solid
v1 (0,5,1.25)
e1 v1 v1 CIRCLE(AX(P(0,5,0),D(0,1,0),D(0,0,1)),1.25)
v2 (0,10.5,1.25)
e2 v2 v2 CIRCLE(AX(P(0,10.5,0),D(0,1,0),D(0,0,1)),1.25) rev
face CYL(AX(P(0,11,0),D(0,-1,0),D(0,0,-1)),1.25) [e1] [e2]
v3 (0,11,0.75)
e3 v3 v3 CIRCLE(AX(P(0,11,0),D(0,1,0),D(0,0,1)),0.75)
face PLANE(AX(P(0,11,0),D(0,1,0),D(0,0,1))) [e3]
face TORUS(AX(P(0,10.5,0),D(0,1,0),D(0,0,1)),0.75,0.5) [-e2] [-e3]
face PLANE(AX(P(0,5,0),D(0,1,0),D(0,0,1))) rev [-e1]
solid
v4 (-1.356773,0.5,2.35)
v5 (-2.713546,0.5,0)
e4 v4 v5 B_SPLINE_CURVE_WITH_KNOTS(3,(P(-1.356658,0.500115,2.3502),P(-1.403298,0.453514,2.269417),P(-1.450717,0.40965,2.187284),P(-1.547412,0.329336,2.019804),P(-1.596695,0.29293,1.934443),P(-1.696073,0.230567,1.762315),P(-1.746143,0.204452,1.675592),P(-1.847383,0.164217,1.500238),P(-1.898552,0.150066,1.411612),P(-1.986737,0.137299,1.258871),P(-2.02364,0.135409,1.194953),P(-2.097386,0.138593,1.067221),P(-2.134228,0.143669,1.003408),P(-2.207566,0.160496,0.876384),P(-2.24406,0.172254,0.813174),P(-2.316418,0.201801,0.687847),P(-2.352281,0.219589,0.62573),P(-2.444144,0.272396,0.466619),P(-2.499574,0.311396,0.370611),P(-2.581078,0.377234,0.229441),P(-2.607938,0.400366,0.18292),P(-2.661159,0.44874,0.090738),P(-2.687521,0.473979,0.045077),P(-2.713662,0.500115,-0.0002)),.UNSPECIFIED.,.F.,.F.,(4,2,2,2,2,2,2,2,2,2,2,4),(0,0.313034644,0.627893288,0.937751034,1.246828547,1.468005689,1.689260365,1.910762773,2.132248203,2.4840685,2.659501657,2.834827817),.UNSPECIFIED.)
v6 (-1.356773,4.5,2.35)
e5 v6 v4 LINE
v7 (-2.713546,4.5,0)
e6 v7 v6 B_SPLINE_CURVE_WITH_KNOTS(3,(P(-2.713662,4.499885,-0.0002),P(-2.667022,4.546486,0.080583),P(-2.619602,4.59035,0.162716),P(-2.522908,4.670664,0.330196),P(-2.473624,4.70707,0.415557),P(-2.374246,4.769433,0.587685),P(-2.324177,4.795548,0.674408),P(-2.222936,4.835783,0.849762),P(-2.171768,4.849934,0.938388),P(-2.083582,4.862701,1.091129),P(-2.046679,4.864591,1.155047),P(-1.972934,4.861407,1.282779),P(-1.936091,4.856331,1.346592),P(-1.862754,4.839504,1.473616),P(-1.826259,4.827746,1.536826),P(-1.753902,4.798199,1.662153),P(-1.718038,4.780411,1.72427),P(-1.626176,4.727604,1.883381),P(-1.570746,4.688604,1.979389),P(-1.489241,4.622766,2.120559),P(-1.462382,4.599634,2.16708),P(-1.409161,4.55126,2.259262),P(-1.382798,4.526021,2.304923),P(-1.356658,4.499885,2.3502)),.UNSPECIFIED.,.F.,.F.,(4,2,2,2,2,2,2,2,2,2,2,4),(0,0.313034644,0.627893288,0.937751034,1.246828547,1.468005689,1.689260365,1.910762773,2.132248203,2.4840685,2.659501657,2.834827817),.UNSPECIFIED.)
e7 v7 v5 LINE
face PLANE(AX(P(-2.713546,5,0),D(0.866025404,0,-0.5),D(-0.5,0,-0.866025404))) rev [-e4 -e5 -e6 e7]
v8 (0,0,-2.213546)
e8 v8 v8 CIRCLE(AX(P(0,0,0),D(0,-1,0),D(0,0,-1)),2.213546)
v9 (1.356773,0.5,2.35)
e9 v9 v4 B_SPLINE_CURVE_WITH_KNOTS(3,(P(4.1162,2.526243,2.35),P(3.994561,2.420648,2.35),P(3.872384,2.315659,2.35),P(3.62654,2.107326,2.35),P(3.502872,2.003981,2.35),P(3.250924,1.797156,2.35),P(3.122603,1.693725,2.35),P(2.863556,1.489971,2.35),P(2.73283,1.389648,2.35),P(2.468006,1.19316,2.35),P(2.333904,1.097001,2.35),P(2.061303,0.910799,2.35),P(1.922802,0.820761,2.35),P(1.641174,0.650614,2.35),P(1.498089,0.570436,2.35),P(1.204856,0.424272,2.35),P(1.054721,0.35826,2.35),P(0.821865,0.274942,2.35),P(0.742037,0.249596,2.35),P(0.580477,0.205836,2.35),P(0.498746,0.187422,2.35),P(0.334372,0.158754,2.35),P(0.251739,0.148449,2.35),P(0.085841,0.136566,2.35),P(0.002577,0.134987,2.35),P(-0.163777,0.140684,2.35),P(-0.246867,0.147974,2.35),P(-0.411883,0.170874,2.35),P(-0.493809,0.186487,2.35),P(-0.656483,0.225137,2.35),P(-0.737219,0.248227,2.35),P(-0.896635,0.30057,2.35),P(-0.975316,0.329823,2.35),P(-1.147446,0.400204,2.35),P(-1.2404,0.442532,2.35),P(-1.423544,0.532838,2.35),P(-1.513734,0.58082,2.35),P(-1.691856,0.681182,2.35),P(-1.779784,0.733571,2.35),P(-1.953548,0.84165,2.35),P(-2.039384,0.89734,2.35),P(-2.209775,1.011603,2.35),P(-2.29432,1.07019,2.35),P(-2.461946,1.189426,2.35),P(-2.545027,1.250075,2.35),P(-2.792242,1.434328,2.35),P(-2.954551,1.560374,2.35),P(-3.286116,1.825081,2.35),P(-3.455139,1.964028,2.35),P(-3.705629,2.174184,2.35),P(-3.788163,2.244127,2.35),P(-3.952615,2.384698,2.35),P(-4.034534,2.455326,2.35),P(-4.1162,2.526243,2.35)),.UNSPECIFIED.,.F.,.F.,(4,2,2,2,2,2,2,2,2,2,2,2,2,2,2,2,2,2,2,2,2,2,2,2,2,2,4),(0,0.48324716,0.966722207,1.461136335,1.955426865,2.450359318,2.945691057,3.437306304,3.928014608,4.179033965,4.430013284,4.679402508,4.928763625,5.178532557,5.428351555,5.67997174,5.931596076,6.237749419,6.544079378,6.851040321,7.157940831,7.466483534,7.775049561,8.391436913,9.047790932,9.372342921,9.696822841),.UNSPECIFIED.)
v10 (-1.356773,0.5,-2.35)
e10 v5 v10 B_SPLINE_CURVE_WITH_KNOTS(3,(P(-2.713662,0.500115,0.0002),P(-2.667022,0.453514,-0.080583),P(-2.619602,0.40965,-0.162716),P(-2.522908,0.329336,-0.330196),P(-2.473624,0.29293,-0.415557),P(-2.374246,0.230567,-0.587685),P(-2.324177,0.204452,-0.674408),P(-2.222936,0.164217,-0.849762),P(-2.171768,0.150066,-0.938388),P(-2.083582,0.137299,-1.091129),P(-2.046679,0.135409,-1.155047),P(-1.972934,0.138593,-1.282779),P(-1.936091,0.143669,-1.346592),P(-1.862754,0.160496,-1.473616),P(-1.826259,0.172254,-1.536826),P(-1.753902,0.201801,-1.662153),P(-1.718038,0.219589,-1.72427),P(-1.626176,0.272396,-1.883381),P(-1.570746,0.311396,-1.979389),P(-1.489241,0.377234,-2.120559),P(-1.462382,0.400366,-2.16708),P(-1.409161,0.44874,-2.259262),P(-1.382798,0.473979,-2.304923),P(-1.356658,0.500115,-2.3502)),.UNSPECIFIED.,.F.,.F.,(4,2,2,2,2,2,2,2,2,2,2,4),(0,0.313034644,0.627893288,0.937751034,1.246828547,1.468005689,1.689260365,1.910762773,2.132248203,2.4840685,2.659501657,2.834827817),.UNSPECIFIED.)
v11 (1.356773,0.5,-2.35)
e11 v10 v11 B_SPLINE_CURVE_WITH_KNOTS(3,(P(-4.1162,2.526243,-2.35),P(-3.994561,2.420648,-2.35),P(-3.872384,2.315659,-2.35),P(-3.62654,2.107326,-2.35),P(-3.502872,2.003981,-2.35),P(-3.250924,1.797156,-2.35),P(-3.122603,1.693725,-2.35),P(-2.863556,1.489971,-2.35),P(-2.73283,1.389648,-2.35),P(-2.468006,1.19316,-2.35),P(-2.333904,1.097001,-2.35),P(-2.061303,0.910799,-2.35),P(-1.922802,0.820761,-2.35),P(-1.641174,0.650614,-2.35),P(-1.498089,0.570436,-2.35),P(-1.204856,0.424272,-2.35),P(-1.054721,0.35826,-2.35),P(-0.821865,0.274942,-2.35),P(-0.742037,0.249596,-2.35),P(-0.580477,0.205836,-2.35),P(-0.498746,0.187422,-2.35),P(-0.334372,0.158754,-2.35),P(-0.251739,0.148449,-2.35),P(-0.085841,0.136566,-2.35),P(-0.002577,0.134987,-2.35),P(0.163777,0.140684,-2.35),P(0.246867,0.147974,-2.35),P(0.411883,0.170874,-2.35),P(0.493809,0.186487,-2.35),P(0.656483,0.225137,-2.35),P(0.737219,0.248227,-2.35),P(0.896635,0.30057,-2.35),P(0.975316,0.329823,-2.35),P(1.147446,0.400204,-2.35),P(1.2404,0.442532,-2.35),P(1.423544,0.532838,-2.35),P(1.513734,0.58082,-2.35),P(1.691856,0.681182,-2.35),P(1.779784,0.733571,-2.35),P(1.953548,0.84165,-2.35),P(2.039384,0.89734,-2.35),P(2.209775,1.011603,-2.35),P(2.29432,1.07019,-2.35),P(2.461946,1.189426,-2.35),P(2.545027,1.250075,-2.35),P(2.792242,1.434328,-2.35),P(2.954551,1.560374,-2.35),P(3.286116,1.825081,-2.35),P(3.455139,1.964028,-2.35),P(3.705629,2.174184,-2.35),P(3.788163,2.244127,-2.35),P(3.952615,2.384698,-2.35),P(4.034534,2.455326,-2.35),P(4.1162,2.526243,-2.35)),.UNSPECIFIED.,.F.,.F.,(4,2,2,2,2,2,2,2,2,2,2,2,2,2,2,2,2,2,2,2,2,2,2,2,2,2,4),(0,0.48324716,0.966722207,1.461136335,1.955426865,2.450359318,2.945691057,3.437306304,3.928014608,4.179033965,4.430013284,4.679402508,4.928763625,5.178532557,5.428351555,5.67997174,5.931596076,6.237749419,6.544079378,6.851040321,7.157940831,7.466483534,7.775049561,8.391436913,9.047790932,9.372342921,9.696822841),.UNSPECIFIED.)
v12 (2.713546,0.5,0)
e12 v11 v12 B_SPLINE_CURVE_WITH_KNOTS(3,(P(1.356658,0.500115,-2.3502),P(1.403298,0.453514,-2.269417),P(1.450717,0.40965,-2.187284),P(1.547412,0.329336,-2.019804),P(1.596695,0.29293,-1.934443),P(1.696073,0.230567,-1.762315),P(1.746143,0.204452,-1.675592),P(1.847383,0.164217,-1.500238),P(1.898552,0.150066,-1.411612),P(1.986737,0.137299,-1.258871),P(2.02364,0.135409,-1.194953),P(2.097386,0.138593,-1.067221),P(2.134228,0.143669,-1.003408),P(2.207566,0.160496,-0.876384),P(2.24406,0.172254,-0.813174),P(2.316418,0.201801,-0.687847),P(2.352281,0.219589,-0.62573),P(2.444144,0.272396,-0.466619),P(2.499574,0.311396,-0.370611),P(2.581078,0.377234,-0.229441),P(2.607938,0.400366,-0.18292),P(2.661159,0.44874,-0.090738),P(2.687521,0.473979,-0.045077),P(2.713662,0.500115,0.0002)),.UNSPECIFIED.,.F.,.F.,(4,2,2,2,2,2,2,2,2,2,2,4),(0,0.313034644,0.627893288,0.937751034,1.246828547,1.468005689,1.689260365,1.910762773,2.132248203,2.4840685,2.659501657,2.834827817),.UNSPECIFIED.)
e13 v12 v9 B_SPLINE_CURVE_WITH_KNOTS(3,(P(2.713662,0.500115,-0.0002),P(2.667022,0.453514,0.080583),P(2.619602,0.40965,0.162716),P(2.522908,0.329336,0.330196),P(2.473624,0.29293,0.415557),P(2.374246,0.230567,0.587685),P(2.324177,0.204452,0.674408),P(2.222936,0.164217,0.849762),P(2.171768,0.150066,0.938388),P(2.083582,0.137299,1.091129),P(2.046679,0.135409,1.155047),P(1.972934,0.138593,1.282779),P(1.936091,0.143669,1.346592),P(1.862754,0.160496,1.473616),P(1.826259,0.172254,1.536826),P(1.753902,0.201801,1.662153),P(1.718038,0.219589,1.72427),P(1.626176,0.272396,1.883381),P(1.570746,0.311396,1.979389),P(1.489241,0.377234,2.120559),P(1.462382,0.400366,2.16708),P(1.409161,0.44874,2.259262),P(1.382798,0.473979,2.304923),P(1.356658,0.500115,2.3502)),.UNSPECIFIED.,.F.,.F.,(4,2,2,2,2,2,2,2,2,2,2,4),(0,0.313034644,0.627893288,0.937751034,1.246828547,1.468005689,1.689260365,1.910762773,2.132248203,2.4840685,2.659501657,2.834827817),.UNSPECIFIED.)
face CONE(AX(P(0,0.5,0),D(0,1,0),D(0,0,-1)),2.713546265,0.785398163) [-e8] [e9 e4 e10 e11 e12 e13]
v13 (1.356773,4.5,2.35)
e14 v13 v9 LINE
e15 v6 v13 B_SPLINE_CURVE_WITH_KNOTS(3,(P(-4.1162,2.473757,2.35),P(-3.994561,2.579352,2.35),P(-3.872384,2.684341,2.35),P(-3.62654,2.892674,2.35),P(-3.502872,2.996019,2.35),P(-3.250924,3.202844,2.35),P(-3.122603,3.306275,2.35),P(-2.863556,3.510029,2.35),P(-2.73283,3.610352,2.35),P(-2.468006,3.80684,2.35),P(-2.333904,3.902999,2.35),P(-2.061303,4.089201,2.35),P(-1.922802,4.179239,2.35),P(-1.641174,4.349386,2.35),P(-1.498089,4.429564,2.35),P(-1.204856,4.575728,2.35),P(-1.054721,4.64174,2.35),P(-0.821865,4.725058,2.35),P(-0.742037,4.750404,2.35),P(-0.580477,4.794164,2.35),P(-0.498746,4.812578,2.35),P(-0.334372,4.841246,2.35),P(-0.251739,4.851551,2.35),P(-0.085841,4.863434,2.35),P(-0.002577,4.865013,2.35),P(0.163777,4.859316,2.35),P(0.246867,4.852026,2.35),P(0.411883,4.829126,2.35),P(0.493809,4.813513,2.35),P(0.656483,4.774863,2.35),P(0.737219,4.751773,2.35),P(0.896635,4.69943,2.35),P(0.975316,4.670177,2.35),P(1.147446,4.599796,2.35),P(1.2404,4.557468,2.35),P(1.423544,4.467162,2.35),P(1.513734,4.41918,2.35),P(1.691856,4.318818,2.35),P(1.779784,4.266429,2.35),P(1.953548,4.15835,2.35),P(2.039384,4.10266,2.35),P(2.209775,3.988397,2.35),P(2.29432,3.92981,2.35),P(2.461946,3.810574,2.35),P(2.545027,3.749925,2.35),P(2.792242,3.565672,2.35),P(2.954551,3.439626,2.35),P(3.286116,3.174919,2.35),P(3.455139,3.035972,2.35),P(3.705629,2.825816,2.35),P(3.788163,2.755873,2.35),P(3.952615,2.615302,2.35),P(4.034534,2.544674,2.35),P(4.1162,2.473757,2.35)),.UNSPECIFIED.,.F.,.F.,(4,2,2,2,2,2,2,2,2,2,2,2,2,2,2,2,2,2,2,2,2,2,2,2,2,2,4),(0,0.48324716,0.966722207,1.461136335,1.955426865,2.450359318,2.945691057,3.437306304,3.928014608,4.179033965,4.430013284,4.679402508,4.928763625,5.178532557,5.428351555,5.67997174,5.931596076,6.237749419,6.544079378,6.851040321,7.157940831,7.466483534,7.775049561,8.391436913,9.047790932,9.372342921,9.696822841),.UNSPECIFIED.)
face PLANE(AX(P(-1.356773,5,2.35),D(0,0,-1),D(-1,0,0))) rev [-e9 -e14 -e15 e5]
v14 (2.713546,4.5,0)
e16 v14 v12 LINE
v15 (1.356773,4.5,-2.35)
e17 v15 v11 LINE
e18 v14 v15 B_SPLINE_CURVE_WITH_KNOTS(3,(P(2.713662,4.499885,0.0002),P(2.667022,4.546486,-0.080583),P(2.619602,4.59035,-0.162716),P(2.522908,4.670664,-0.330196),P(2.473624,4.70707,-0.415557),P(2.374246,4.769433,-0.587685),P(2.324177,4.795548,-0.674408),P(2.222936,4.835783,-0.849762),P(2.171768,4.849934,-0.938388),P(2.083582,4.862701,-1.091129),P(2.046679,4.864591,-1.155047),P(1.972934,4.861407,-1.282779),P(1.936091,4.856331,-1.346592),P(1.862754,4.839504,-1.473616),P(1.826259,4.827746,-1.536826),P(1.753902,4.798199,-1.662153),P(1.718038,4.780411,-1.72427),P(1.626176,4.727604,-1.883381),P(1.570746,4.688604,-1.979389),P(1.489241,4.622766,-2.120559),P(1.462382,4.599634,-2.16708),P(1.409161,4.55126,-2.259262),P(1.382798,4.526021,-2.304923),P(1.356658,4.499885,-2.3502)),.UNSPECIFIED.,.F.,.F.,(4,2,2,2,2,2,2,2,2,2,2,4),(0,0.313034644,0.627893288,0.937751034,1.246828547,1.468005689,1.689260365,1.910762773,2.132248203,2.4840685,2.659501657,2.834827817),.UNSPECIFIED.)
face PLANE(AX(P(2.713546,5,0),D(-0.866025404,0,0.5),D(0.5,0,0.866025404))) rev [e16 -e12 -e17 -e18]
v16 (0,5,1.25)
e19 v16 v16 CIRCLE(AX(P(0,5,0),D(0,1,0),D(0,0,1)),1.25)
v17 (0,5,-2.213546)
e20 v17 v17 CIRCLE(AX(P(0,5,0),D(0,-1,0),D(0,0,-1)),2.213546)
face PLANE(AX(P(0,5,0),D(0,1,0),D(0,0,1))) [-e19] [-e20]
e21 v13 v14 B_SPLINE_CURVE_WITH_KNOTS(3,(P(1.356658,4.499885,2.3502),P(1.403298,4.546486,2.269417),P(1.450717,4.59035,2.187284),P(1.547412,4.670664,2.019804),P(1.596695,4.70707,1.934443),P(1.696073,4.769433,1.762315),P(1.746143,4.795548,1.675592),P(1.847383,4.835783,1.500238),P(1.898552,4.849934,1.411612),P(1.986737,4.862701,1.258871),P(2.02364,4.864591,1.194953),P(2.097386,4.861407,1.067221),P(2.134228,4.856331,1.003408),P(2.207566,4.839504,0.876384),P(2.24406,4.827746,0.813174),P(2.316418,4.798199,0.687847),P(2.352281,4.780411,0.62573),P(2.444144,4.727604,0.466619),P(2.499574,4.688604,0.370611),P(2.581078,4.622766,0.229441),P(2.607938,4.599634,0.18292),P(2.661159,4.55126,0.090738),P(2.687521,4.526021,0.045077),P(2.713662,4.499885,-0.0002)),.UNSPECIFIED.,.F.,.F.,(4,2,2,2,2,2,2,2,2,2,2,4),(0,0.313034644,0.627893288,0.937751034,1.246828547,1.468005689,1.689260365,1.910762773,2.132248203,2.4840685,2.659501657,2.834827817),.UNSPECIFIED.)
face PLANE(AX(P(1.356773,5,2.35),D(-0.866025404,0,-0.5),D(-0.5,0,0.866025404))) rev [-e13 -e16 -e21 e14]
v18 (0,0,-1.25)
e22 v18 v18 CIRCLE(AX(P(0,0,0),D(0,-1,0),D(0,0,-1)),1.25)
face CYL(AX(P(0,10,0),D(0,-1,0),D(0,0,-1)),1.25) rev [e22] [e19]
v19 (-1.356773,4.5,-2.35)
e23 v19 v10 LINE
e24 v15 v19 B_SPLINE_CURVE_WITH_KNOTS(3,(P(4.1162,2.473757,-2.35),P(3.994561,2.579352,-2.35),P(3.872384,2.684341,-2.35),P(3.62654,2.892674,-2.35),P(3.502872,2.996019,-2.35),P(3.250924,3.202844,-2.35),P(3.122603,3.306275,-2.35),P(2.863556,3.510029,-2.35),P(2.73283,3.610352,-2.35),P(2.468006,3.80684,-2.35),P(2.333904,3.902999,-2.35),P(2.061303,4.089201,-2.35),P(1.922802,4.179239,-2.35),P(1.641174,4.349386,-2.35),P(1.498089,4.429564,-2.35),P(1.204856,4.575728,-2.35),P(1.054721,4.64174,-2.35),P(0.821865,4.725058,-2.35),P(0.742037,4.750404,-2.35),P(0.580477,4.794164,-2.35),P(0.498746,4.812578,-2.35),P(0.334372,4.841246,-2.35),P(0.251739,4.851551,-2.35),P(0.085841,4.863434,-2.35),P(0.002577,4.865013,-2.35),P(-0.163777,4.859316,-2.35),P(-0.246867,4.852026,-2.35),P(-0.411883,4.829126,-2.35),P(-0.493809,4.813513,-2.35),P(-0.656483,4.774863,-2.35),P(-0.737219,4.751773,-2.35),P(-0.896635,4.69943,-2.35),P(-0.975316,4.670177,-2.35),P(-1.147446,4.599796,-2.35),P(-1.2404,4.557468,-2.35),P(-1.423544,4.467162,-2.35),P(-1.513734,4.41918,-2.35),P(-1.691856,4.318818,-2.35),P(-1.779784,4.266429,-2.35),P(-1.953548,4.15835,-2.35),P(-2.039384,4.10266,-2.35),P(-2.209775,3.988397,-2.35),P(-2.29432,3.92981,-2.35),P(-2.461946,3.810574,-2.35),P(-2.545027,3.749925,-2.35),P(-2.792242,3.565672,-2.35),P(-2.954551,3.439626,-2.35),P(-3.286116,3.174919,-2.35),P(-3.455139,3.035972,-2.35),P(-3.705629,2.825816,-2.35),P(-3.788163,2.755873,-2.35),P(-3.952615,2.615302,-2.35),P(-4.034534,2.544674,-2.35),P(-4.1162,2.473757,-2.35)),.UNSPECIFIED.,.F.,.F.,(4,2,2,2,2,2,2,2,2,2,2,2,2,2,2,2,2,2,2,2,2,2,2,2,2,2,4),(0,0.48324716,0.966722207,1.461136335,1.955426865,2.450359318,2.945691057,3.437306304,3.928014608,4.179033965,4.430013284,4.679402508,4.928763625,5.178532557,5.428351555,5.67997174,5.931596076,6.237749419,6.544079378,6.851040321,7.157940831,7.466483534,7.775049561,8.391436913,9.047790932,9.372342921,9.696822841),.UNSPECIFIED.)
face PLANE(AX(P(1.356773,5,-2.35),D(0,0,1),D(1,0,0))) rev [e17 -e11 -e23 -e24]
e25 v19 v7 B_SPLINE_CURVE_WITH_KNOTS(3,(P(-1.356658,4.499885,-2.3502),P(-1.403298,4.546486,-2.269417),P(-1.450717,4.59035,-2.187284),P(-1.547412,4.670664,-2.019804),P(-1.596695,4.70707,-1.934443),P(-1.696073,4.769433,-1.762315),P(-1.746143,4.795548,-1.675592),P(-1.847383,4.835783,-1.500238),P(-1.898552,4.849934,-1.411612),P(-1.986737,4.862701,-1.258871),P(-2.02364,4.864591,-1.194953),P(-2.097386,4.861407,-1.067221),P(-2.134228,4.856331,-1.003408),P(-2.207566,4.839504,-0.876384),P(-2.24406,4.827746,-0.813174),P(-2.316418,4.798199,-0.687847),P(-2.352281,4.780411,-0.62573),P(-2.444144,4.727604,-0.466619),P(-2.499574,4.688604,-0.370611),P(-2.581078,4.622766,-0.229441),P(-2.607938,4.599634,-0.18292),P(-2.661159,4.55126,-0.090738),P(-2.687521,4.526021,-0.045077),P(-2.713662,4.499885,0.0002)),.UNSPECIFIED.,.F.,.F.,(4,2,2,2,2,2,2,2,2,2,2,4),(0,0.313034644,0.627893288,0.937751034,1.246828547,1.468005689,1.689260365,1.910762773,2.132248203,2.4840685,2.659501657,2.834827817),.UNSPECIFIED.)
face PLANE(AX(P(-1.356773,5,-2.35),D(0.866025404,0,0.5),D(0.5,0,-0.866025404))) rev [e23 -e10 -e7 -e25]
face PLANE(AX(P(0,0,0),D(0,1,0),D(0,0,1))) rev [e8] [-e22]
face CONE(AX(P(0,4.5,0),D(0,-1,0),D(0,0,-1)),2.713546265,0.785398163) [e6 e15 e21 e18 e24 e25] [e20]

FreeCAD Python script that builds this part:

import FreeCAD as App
import Part
import Sketcher
from FreeCAD import Vector
Q = App.Units.Quantity


def edges_at(feature, points):
    """Names of the edges that pass closest to the given points."""
    edges = feature.Shape.Edges
    near = lambda p: min(range(len(edges)), key=lambda i: edges[i].distToShape(Part.Vertex(*p))[0])
    return sorted({f"Edge{near(p) + 1}" for p in points})


def add_polygon(sketch, points):
    """Adds a closed chain of lines whose ends are joined by coincident constraints."""
    first, n = sketch.GeometryCount, len(points)
    for a, b in zip(points, points[1:] + points[:1]):
        sketch.addGeometry(Part.LineSegment(App.Vector(*a, 0), App.Vector(*b, 0)), False)
    for i in range(n):
        sketch.addConstraint(Sketcher.Constraint("Coincident", first + i, 2, first + (i + 1) % n, 1))

doc = App.newDocument("Part")
body = doc.addObject("PartDesign::Body", "Body")

sketch1 = body.newObject("Sketcher::SketchObject", "Sketch")
sketch1.AttachmentSupport = (doc.getObject("XZ_Plane"), [""])
sketch1.MapMode = "FlatFace"
add_polygon(sketch1, [(2.7, 0), (1.4, -2.4), (-1.4, -2.4), (-2.7, 0), (-1.4, 2.4), (1.4, 2.4)])
sketch1.addConstraint([
    Sketcher.Constraint("Horizontal", 1),
    Sketcher.Constraint("Horizontal", 4),
    Sketcher.Constraint("Symmetric", 0, 2, 3, 2, -1, 1),
    Sketcher.Constraint("Symmetric", 2, 2, 5, 2, -1, 1),
    Sketcher.Constraint("PointOnObject", 2, 2, -1),
    Sketcher.Constraint("Parallel", 2, 5),
    Sketcher.Constraint("Vertical", 1, 2, 3, 2),
    Sketcher.Constraint("Angle", 0, Q("-120 deg")),
    Sketcher.Constraint("DistanceY", 1, 2, 3, 2, 4.7),
    Sketcher.Constraint("DistanceX", 1, 2, 1, 1, 2.713546),
])
pad1 = body.newObject("PartDesign::Pad", "Pad")
pad1.Profile = sketch1
pad1.Length = 5
pad1.Reversed = True

sketch2 = body.newObject("Sketcher::SketchObject", "Sketch001")
sketch2.AttachmentSupport = (doc.getObject("XZ_Plane"), [""])
sketch2.MapMode = "FlatFace"
sketch2.addGeometry(Part.Circle(Vector(0, 0, 0), Vector(0, 0, 1), 1.2), False)
sketch2.addConstraint([
    Sketcher.Constraint("Coincident", 0, 3, -1, 1),
    Sketcher.Constraint("Diameter", 0, 2.5),
])
pocket1 = body.newObject("PartDesign::Pocket", "Pocket")
pocket1.Profile = sketch2
pocket1.Length = 10

sketch3 = body.newObject("Sketcher::SketchObject", "Sketch002")
sketch3.AttachmentSupport = (doc.getObject("XY_Plane"), [""])
sketch3.MapMode = "FlatFace"
add_polygon(sketch3, [(-2.7, 5), (-2.7, 4.5), (-2.2, 5)])
sketch3.addConstraint([
    Sketcher.Constraint("Vertical", 0),
    Sketcher.Constraint("Horizontal", 2),
    Sketcher.Constraint("Equal", 2, 0),
    Sketcher.Constraint("DistanceX", 2, 2, 2, 1, 0.5),
    Sketcher.Constraint("DistanceY", -1, 1, 1, 2, 5.0),
    Sketcher.Constraint("DistanceX", 0, 2, -1, 1, 2.713546),
])
groove = body.newObject("PartDesign::Groove", "Groove")
groove.Profile = sketch3
groove.ReferenceAxis = (sketch3, ["V_Axis"])
groove.Angle = 360
doc.recompute()

datumplane = body.newObject("PartDesign::Plane", "DatumPlane")
datumplane.AttachmentSupport = (doc.getObject("XZ_Plane"), [""])
datumplane.MapMode = "FlatFace"
datumplane.AttachmentOffset = App.Placement(Vector(0, 0, -2.5), App.Rotation())
mirrored = body.newObject("PartDesign::Mirrored", "Mirrored")
mirrored.Originals = [groove]
mirrored.MirrorPlane = (datumplane, [""])
body.Tip = mirrored
body2 = doc.addObject("PartDesign::Body", "Body001")

sketch4 = body2.newObject("Sketcher::SketchObject", "Sketch003")
sketch4.AttachmentSupport = (doc.getObject("XZ_Plane001"), [""])
sketch4.MapMode = "FlatFace"
sketch4.AttachmentOffset = App.Placement(Vector(0, 0, -5), App.Rotation())
sketch4.addGeometry(Part.Circle(Vector(0, 0, 0), Vector(0, 0, 1), 1.2), False)
sketch4.addConstraint([
    Sketcher.Constraint("Coincident", 0, 3, -1, 1),
    Sketcher.Constraint("Diameter", 0, 2.5),
])
pad2 = body2.newObject("PartDesign::Pad", "Pad001")
pad2.Profile = sketch4
pad2.Length = 6
pad2.Reversed = True
doc.recompute()

fillet = body2.newObject("PartDesign::Fillet", "Fillet")
fillet.Base = (pad2, edges_at(pad2, [(0, 11, -1.25)]))
fillet.Radius = 0.5

doc.recompute()
